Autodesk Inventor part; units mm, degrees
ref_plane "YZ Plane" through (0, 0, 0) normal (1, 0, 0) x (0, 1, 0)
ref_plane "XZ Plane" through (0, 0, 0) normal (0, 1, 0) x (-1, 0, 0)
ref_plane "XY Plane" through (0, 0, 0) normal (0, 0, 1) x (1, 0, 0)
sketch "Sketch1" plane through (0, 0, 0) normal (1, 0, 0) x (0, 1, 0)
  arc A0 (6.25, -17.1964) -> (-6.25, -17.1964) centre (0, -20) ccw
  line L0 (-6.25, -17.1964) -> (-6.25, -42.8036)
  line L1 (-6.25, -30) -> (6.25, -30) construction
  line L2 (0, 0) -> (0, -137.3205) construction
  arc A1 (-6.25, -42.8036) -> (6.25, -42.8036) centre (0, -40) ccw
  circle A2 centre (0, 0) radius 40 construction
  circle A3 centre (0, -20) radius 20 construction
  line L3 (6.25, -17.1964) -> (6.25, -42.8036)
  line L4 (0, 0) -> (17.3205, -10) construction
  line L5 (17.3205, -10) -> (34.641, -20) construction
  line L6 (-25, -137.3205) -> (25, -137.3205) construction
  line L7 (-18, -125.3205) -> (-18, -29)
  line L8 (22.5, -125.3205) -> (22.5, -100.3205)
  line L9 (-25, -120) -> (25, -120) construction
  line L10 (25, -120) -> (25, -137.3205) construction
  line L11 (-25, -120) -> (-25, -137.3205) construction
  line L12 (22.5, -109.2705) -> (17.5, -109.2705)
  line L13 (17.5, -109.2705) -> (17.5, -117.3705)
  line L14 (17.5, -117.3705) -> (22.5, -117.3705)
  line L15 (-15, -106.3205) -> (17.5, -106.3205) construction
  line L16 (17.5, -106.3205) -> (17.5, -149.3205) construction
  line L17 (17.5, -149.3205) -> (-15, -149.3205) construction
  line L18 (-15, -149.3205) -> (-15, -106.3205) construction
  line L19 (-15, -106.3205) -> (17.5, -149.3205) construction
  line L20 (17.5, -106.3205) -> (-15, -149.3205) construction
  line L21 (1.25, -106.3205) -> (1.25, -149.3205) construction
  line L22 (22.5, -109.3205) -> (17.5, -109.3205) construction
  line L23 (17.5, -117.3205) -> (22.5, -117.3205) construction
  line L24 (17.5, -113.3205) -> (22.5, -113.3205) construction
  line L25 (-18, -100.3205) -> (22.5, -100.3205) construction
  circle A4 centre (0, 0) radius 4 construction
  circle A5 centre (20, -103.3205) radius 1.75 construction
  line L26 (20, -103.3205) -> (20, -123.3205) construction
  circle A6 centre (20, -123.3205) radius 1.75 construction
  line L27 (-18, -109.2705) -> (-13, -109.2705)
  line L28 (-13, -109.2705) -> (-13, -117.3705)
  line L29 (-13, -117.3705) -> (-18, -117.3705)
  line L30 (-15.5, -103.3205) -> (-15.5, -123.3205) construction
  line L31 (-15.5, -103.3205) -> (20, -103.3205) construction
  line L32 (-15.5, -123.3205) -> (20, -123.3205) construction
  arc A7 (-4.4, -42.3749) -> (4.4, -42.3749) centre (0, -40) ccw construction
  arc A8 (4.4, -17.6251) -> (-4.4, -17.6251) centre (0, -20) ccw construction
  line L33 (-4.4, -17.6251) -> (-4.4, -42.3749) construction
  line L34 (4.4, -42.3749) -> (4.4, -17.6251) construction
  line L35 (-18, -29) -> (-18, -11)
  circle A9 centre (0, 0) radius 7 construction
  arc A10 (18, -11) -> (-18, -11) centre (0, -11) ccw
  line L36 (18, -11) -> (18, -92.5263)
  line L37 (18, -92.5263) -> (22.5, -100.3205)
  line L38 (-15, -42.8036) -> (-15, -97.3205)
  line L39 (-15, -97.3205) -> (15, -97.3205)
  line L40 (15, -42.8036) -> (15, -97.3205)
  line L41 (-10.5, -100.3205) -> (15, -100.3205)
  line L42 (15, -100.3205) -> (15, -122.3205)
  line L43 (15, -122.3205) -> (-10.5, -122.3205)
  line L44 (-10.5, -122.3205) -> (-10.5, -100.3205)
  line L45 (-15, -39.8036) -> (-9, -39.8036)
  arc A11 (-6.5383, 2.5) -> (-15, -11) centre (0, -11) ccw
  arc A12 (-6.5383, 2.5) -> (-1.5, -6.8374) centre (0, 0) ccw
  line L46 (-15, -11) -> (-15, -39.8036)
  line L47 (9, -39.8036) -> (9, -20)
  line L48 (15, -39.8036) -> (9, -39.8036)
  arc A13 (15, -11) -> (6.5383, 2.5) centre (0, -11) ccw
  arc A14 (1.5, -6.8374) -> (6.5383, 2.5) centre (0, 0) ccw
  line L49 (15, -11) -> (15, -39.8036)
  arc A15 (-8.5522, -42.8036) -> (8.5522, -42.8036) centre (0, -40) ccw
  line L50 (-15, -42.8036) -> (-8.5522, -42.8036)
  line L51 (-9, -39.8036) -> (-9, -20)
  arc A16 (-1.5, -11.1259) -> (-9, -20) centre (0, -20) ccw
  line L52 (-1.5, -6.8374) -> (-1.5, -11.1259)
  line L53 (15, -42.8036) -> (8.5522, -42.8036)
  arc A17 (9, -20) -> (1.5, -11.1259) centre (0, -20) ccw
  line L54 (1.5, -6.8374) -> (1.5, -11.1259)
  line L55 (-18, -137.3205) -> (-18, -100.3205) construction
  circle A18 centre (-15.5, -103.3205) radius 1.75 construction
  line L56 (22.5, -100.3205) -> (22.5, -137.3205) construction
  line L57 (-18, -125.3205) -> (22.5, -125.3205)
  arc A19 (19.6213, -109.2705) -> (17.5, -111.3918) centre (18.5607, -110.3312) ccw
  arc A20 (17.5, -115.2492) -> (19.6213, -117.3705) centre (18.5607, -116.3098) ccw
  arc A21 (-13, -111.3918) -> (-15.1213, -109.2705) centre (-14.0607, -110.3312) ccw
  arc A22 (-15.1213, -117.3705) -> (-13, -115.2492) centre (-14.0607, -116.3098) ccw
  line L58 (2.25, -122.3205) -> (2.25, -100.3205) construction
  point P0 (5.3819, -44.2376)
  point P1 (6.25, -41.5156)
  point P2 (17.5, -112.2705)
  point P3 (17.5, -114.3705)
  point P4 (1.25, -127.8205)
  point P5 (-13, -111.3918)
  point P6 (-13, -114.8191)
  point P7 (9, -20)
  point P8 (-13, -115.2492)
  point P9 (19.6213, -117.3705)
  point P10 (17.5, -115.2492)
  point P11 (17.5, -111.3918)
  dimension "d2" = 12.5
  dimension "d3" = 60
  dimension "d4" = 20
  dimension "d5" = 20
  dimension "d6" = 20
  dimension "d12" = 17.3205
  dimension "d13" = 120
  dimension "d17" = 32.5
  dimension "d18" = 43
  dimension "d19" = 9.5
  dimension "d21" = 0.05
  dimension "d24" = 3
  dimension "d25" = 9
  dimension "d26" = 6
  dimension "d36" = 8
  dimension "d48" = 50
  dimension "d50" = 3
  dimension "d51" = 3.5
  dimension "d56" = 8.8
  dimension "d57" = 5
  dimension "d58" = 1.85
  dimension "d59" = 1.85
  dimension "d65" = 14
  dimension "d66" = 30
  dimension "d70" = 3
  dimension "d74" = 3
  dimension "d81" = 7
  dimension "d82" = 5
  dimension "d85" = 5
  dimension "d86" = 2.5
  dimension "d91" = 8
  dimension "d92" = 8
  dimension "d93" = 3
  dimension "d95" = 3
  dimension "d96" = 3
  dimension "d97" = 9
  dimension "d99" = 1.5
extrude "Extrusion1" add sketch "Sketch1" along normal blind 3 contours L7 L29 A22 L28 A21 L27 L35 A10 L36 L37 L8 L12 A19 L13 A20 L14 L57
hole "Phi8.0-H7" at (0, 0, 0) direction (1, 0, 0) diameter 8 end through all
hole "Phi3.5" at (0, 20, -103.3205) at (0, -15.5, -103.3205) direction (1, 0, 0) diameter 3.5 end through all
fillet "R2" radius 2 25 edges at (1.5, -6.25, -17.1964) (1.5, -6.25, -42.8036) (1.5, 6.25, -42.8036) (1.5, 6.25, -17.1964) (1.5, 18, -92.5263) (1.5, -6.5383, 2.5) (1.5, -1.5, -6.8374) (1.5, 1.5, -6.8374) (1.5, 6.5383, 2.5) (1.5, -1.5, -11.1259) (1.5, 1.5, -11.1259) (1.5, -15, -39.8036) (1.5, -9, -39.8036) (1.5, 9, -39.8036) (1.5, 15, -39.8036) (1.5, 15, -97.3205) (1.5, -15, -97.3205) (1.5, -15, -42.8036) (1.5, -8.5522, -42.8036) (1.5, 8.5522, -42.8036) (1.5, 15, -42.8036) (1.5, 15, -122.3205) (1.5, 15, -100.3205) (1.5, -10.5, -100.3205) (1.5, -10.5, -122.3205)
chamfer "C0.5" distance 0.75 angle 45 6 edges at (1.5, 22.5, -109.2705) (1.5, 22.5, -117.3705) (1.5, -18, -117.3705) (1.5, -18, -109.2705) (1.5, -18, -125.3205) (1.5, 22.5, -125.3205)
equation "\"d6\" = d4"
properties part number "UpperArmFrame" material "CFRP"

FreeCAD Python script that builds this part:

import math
import FreeCAD as App
import Part
import Sketcher
from FreeCAD import Vector
Q = App.Units.Quantity


def edges_at(feature, points):
    """Names of the edges that pass closest to the given points."""
    edges = feature.Shape.Edges
    near = lambda p: min(range(len(edges)), key=lambda i: edges[i].distToShape(Part.Vertex(*p))[0])
    return sorted({f"Edge{near(p) + 1}" for p in points})


def add_polygon(sketch, points):
    """Adds a closed chain of lines whose ends are joined by coincident constraints."""
    first, n = sketch.GeometryCount, len(points)
    for a, b in zip(points, points[1:] + points[:1]):
        sketch.addGeometry(Part.LineSegment(App.Vector(*a, 0), App.Vector(*b, 0)), False)
    for i in range(n):
        sketch.addConstraint(Sketcher.Constraint("Coincident", first + i, 2, first + (i + 1) % n, 1))

doc = App.newDocument("Part")
body = doc.addObject("PartDesign::Body", "Body")

# Sketch on YZ plane
sketch1 = body.newObject("Sketcher::SketchObject", "Sketch")
sketch1.AttachmentSupport = (doc.getObject("YZ_Plane"), [""])
sketch1.MapMode = "FlatFace"
sketch1.addGeometry(Part.LineSegment(Vector(-18, -117.3705, 0), Vector(-18, -125.3205, 0)), False)  # 0
sketch1.addGeometry(Part.LineSegment(Vector(-18, -125.3205, 0), Vector(22.5, -125.3205, 0)), False)  # 1
sketch1.addGeometry(Part.LineSegment(Vector(22.5, -125.3205, 0), Vector(22.5, -117.3705, 0)), False)  # 2
sketch1.addGeometry(Part.LineSegment(Vector(22.5, -117.3705, 0), Vector(19.6213, -117.3705, 0)), False)  # 3
sketch1.addGeometry(Part.ArcOfCircle(Part.Circle(Vector(18.5607, -116.3098, 0), Vector(0, 0, 1), 1.499986), math.radians(135.002701), math.radians(314.997299)), False)  # 4
sketch1.addGeometry(Part.LineSegment(Vector(17.5, -115.2492, 0), Vector(17.5, -111.3918, 0)), False)  # 5
sketch1.addGeometry(Part.ArcOfCircle(Part.Circle(Vector(18.5607, -110.3312, 0), Vector(0, 0, 1), 1.499986), math.radians(45.002701), math.radians(224.997299)), False)  # 6
sketch1.addGeometry(Part.LineSegment(Vector(19.6213, -109.2705, 0), Vector(22.5, -109.2705, 0)), False)  # 7
sketch1.addGeometry(Part.LineSegment(Vector(22.5, -109.2705, 0), Vector(22.5, -100.3205, 0)), False)  # 8
sketch1.addGeometry(Part.LineSegment(Vector(22.5, -100.3205, 0), Vector(18, -92.5263, 0)), False)  # 9
sketch1.addGeometry(Part.LineSegment(Vector(18, -92.5263, 0), Vector(18, -11, 0)), False)  # 10
sketch1.addGeometry(Part.ArcOfCircle(Part.Circle(Vector(0, -11, 0), Vector(0, 0, 1), 18), math.radians(0), math.radians(180)), False)  # 11
sketch1.addGeometry(Part.LineSegment(Vector(-18, -11, 0), Vector(-18, -109.2705, 0)), False)  # 12
sketch1.addGeometry(Part.LineSegment(Vector(-18, -109.2705, 0), Vector(-15.1213, -109.2705, 0)), False)  # 13
sketch1.addGeometry(Part.ArcOfCircle(Part.Circle(Vector(-14.0607, -110.3312, 0), Vector(0, 0, 1), 1.499986), math.radians(-44.997299), math.radians(134.997299)), False)  # 14
sketch1.addGeometry(Part.LineSegment(Vector(-13, -111.3918, 0), Vector(-13, -115.2492, 0)), False)  # 15
sketch1.addGeometry(Part.ArcOfCircle(Part.Circle(Vector(-14.0607, -116.3098, 0), Vector(0, 0, 1), 1.499986), math.radians(-134.997299), math.radians(44.997299)), False)  # 16
sketch1.addGeometry(Part.LineSegment(Vector(-15.1213, -117.3705, 0), Vector(-18, -117.3705, 0)), False)  # 17
sketch1.addGeometry(Part.LineSegment(Vector(-15, -97.3205, 0), Vector(-15, -42.8036, 0)), False)  # 18
sketch1.addGeometry(Part.LineSegment(Vector(-15, -42.8036, 0), Vector(-8.5522, -42.8036, 0)), False)  # 19
sketch1.addGeometry(Part.ArcOfCircle(Part.Circle(Vector(0, -40, 0), Vector(0, 0, 1), 9.000017), math.radians(-161.849714), math.radians(-18.150286)), False)  # 20
sketch1.addGeometry(Part.LineSegment(Vector(8.5522, -42.8036, 0), Vector(15, -42.8036, 0)), False)  # 21
sketch1.addGeometry(Part.LineSegment(Vector(15, -42.8036, 0), Vector(15, -97.3205, 0)), False)  # 22
sketch1.addGeometry(Part.LineSegment(Vector(15, -97.3205, 0), Vector(-15, -97.3205, 0)), False)  # 23
add_polygon(sketch1, [(-10.5, -122.3205), (-10.5, -100.3205), (15, -100.3205), (15, -122.3205)])  # lines 24-27
sketch1.addGeometry(Part.ArcOfCircle(Part.Circle(Vector(0, -20, 0), Vector(0, 0, 1), 6.850013), math.radians(24.15986), math.radians(155.84014)), False)  # 28
sketch1.addGeometry(Part.LineSegment(Vector(6.25, -17.1964, 0), Vector(6.25, -42.8036, 0)), False)  # 29
sketch1.addGeometry(Part.ArcOfCircle(Part.Circle(Vector(0, -40, 0), Vector(0, 0, 1), 6.850013), math.radians(-155.84014), math.radians(-24.15986)), False)  # 30
sketch1.addGeometry(Part.LineSegment(Vector(-6.25, -42.8036, 0), Vector(-6.25, -17.1964, 0)), False)  # 31
sketch1.addGeometry(Part.LineSegment(Vector(-9, -39.8036, 0), Vector(-15, -39.8036, 0)), False)  # 32
sketch1.addGeometry(Part.LineSegment(Vector(-15, -39.8036, 0), Vector(-15, -11, 0)), False)  # 33
sketch1.addGeometry(Part.ArcOfCircle(Part.Circle(Vector(0, -11, 0), Vector(0, 0, 1), 15), math.radians(115.841766), math.radians(180)), False)  # 34
sketch1.addGeometry(Part.ArcOfCircle(Part.Circle(Vector(0, 0, 0), Vector(0, 0, 1), 7.000003), math.radians(159.075026), math.radians(257.62638)), False)  # 35
sketch1.addGeometry(Part.LineSegment(Vector(-1.5, -6.8374, 0), Vector(-1.5, -11.1259, 0)), False)  # 36
sketch1.addGeometry(Part.ArcOfCircle(Part.Circle(Vector(0, -20, 0), Vector(0, 0, 1), 9), math.radians(99.594089), math.radians(180)), False)  # 37
sketch1.addGeometry(Part.LineSegment(Vector(-9, -20, 0), Vector(-9, -39.8036, 0)), False)  # 38
sketch1.addGeometry(Part.LineSegment(Vector(15, -39.8036, 0), Vector(9, -39.8036, 0)), False)  # 39
sketch1.addGeometry(Part.LineSegment(Vector(9, -39.8036, 0), Vector(9, -20, 0)), False)  # 40
sketch1.addGeometry(Part.ArcOfCircle(Part.Circle(Vector(0, -20, 0), Vector(0, 0, 1), 8.999981), math.radians(0), math.radians(80.405911)), False)  # 41
sketch1.addGeometry(Part.LineSegment(Vector(1.5, -11.1259, 0), Vector(1.5, -6.8374, 0)), False)  # 42
sketch1.addGeometry(Part.ArcOfCircle(Part.Circle(Vector(0, 0, 0), Vector(0, 0, 1), 6.999955), math.radians(-77.62638), math.radians(20.924974)), False)  # 43
sketch1.addGeometry(Part.ArcOfCircle(Part.Circle(Vector(0, -11, 0), Vector(0, 0, 1), 14.999979), math.radians(0), math.radians(64.158234)), False)  # 44
sketch1.addGeometry(Part.LineSegment(Vector(15, -11, 0), Vector(15, -39.8036, 0)), False)  # 45
sketch1.addConstraint([
    Sketcher.Constraint("Coincident", 0, 2, 1, 1),
    Sketcher.Constraint("Coincident", 1, 2, 2, 1),
    Sketcher.Constraint("Coincident", 2, 2, 3, 1),
    Sketcher.Constraint("Coincident", 3, 2, 4, 2),
    Sketcher.Constraint("Coincident", 4, 1, 5, 1),
    Sketcher.Constraint("Coincident", 5, 2, 6, 2),
    Sketcher.Constraint("Coincident", 6, 1, 7, 1),
    Sketcher.Constraint("Coincident", 7, 2, 8, 1),
    Sketcher.Constraint("Coincident", 8, 2, 9, 1),
    Sketcher.Constraint("Coincident", 9, 2, 10, 1),
    Sketcher.Constraint("Tangent", 10, 2, 11, 1),
    Sketcher.Constraint("Tangent", 11, 2, 12, 1),
    Sketcher.Constraint("Coincident", 12, 2, 13, 1),
    Sketcher.Constraint("Coincident", 13, 2, 14, 2),
    Sketcher.Constraint("Coincident", 14, 1, 15, 1),
    Sketcher.Constraint("Coincident", 15, 2, 16, 2),
    Sketcher.Constraint("Coincident", 16, 1, 17, 1),
    Sketcher.Constraint("Coincident", 17, 2, 0, 1),
    Sketcher.Constraint("Coincident", 18, 2, 19, 1),
    Sketcher.Constraint("Coincident", 19, 2, 20, 1),
    Sketcher.Constraint("Coincident", 20, 2, 21, 1),
    Sketcher.Constraint("Coincident", 21, 2, 22, 1),
    Sketcher.Constraint("Coincident", 22, 2, 23, 1),
    Sketcher.Constraint("Coincident", 23, 2, 18, 1),
    Sketcher.Constraint("Coincident", 28, 1, 29, 1),
    Sketcher.Constraint("Coincident", 29, 2, 30, 2),
    Sketcher.Constraint("Coincident", 30, 1, 31, 1),
    Sketcher.Constraint("Coincident", 31, 2, 28, 2),
    Sketcher.Constraint("Coincident", 32, 2, 33, 1),
    Sketcher.Constraint("Tangent", 33, 2, 34, 2),
    Sketcher.Constraint("Coincident", 34, 1, 35, 1),
    Sketcher.Constraint("Coincident", 35, 2, 36, 1),
    Sketcher.Constraint("Coincident", 36, 2, 37, 1),
    Sketcher.Constraint("Tangent", 37, 2, 38, 1),
    Sketcher.Constraint("Coincident", 38, 2, 32, 1),
    Sketcher.Constraint("Coincident", 39, 2, 40, 1),
    Sketcher.Constraint("Tangent", 40, 2, 41, 1),
    Sketcher.Constraint("Coincident", 41, 2, 42, 1),
    Sketcher.Constraint("Coincident", 42, 2, 43, 1),
    Sketcher.Constraint("Coincident", 43, 2, 44, 2),
    Sketcher.Constraint("Tangent", 44, 1, 45, 1),
    Sketcher.Constraint("Coincident", 45, 2, 39, 1),
    Sketcher.Constraint("Vertical", 0),
    Sketcher.Constraint("Horizontal", 1),
    Sketcher.Constraint("Vertical", 2),
    Sketcher.Constraint("Horizontal", 3),
    Sketcher.Constraint("Vertical", 5),
    Sketcher.Constraint("Horizontal", 7),
    Sketcher.Constraint("Vertical", 8),
    Sketcher.Constraint("Vertical", 10),
    Sketcher.Constraint("Vertical", 12),
    Sketcher.Constraint("Horizontal", 13),
    Sketcher.Constraint("Vertical", 15),
    Sketcher.Constraint("Horizontal", 17),
    Sketcher.Constraint("Vertical", 18),
    Sketcher.Constraint("Horizontal", 19),
    Sketcher.Constraint("Horizontal", 21),
    Sketcher.Constraint("Vertical", 22),
    Sketcher.Constraint("Horizontal", 23),
    Sketcher.Constraint("Vertical", 24),
    Sketcher.Constraint("Horizontal", 25),
    Sketcher.Constraint("Vertical", 26),
    Sketcher.Constraint("Horizontal", 27),
    Sketcher.Constraint("Vertical", 29),
    Sketcher.Constraint("Vertical", 31),
    Sketcher.Constraint("Horizontal", 32),
    Sketcher.Constraint("Vertical", 33),
    Sketcher.Constraint("Vertical", 36),
    Sketcher.Constraint("Vertical", 38),
    Sketcher.Constraint("Horizontal", 39),
    Sketcher.Constraint("Vertical", 40),
    Sketcher.Constraint("Vertical", 42),
    Sketcher.Constraint("Vertical", 45),
    Sketcher.Constraint("Coincident", 35, 3, -1, 1),
    Sketcher.Constraint("Coincident", 43, 3, -1, 1),
    Sketcher.Constraint("Coincident", 30, 3, 20, 3),
    Sketcher.Constraint("Coincident", 34, 3, 11, 3),
    Sketcher.Constraint("Coincident", 37, 3, 28, 3),
    Sketcher.Constraint("Coincident", 41, 3, 28, 3),
    Sketcher.Constraint("Coincident", 44, 3, 11, 3),
    Sketcher.Constraint("Equal", 4, 6),
    Sketcher.Constraint("Equal", 6, 14),
    Sketcher.Constraint("Equal", 14, 16),
    Sketcher.Constraint("Equal", 28, 30),
    Sketcher.Constraint("Equal", 20, 37),
    Sketcher.Constraint("Equal", 37, 41),
    Sketcher.Constraint("Equal", 35, 43),
    Sketcher.Constraint("Equal", 34, 44),
    Sketcher.Constraint("Symmetric", 19, 2, 20, 2, -2),
    Sketcher.Constraint("Symmetric", 28, 1, 31, 2, -2),
    Sketcher.Constraint("Symmetric", 32, 2, 45, 2, -2),
    Sketcher.Constraint("Horizontal", 6, 3, 14, 3),
    Sketcher.Constraint("Horizontal", 4, 3, 16, 3),
    Sketcher.Constraint("Horizontal", 7, 2, 12, 2),
    Sketcher.Constraint("Horizontal", 5, 2, 14, 1),
    Sketcher.Constraint("Horizontal", 4, 1, 15, 2),
    Sketcher.Constraint("Horizontal", 3, 2, 16, 1),
    Sketcher.Constraint("Horizontal", 8, 2, 24, 2),
    Sketcher.Constraint("Horizontal", 21, 2, 29, 2),
    Sketcher.Constraint("Horizontal", 36, 2, 41, 2),
    Sketcher.Constraint("Vertical", 4, 3, 6, 3),
    Sketcher.Constraint("Vertical", 3, 2, 6, 1),
    Sketcher.Constraint("Vertical", 2, 2, 7, 2),
    Sketcher.Constraint("Vertical", 0, 2, 11, 2),
    Sketcher.Constraint("Vertical", 22, 2, 25, 2),
    Sketcher.Constraint("Vertical", 23, 2, 32, 2),
    Sketcher.Constraint("Vertical", 26, 2, 44, 1),
    Sketcher.Constraint("Equal", 7, 13),
    Sketcher.Constraint("Radius", 20, 9.0),
    Sketcher.Constraint("Radius", 34, 15.0),
    Sketcher.Constraint("Radius", 35, 7.0),
    Sketcher.Constraint("Radius", 4, 1.5),
    Sketcher.Constraint("Angle", 9, Q("120 deg")),
    Sketcher.Constraint("Distance", 9, 9.0),
    Sketcher.Constraint("DistanceY", 28, 3, -1, 1, 20.0),
    Sketcher.Constraint("Radius", 11, 18.0),
    Sketcher.Constraint("DistanceY", 28, 3, 11, 3, 9.0),
    Sketcher.Constraint("DistanceY", 20, 3, 28, 3, 20.0),
    Sketcher.Constraint("DistanceX", 4, 1, 2, 2, 5.0),
    Sketcher.Constraint("DistanceY", 8, 2, 22, 2, 3.0),
    Sketcher.Constraint("DistanceY", 1, 2, 26, 2, 3.0),
    Sketcher.Constraint("DistanceY", 18, 2, 32, 2, 3.0),
    Sketcher.Constraint("DistanceX", 36, 2, 41, 2, 3.0),
    Sketcher.Constraint("DistanceX", 14, 1, 24, 2, 2.5),
    Sketcher.Constraint("DistanceX", 30, 1, 29, 2, 12.5),
    Sketcher.Constraint("DistanceY", 24, 1, 24, 2, 22.0),
    Sketcher.Constraint("Radius", 28, 6.85),
    Sketcher.Constraint("DistanceY", 0, 2, 0, 1, 7.95),
    Sketcher.Constraint("DistanceY", 8, 1, 8, 2, 8.95),
    Sketcher.Constraint("DistanceY", 18, 1, 18, 2, 54.517),
    Sketcher.Constraint("DistanceX", 3, 2, 3, 1, 2.8787),
    Sketcher.Constraint("DistanceX", 16, 3, 3, 2, 33.682),
])
pad1 = body.newObject("PartDesign::Pad", "Pad")
pad1.Profile = sketch1
pad1.Length = 3

# Sketch on YZ plane
sketch2 = body.newObject("Sketcher::SketchObject", "Sketch001")
sketch2.AttachmentSupport = (doc.getObject("YZ_Plane"), [""])
sketch2.MapMode = "FlatFace"
sketch2.addGeometry(Part.Circle(Vector(0, 0, 0), Vector(0, 0, 1), 4), False)
sketch2.addConstraint([
    Sketcher.Constraint("Coincident", 0, 3, -1, 1),
    Sketcher.Constraint("Diameter", 0, 8.0),
])
doc.recompute()
hole = body.newObject("PartDesign::Hole", "Hole")
hole.Profile = sketch2
hole.ThreadType = "None"
hole.Diameter = 8
hole.DepthType = "ThroughAll"
hole.Reversed = True

# Sketch on YZ plane
sketch3 = body.newObject("Sketcher::SketchObject", "Sketch002")
sketch3.AttachmentSupport = (doc.getObject("YZ_Plane"), [""])
sketch3.MapMode = "FlatFace"
sketch3.addGeometry([
    Part.Circle(Vector(20, -103.3205, 0), Vector(0, 0, 1), 1.75),
    Part.Circle(Vector(-15.5, -103.3205, 0), Vector(0, 0, 1), 1.75),
], False)
sketch3.addConstraint([
    Sketcher.Constraint("Equal", 0, 1),
    Sketcher.Constraint("Horizontal", 0, 3, 1, 3),
    Sketcher.Constraint("Diameter", 0, 3.5),
    Sketcher.Constraint("DistanceX", -1, 1, 0, 3, 20.0),
    Sketcher.Constraint("DistanceX", 1, 3, -1, 1, 15.5),
    Sketcher.Constraint("DistanceY", 0, 3, -1, 1, 103.3205),
])
doc.recompute()
hole2 = body.newObject("PartDesign::Hole", "Hole001")
hole2.Profile = sketch3
hole2.ThreadType = "None"
hole2.Diameter = 3.5
hole2.DepthType = "ThroughAll"
hole2.Reversed = True
doc.recompute()

fillet = body.newObject("PartDesign::Fillet", "Fillet")
fillet.Base = (hole2, edges_at(hole2, [
    (1.5, -6.25, -17.196),
    (1.5, -6.25, -42.804),
    (1.5, 6.25, -42.804),
    (1.5, 6.25, -17.196),
    (1.5, 18, -92.526),
    (1.5, -6.538, 2.5),
    (1.5, -1.5, -6.837),
    (1.5, 1.5, -6.837),
    (1.5, 6.538, 2.5),
    (1.5, -1.5, -11.126),
    (1.5, 1.5, -11.126),
    (1.5, -15, -39.804),
    (1.5, -9, -39.804),
    (1.5, 9, -39.804),
    (1.5, 15, -39.804),
    (1.5, 15, -97.32),
    (1.5, -15, -97.32),
    (1.5, -15, -42.804),
    (1.5, -8.552, -42.804),
    (1.5, 8.552, -42.804),
    (1.5, 15, -42.804),
    (1.5, 15, -122.32),
    (1.5, 15, -100.32),
    (1.5, -10.5, -100.32),
    (1.5, -10.5, -122.32),
]))
fillet.Radius = 2
doc.recompute()

chamfer = body.newObject("PartDesign::Chamfer", "Chamfer")
chamfer.Base = (fillet, edges_at(fillet, [
    (1.5, 22.5, -109.27),
    (1.5, 22.5, -117.371),
    (1.5, -18, -117.371),
    (1.5, -18, -109.27),
    (1.5, -18, -125.32),
    (1.5, 22.5, -125.32),
]))
chamfer.Size = 0.75

doc.recompute()
